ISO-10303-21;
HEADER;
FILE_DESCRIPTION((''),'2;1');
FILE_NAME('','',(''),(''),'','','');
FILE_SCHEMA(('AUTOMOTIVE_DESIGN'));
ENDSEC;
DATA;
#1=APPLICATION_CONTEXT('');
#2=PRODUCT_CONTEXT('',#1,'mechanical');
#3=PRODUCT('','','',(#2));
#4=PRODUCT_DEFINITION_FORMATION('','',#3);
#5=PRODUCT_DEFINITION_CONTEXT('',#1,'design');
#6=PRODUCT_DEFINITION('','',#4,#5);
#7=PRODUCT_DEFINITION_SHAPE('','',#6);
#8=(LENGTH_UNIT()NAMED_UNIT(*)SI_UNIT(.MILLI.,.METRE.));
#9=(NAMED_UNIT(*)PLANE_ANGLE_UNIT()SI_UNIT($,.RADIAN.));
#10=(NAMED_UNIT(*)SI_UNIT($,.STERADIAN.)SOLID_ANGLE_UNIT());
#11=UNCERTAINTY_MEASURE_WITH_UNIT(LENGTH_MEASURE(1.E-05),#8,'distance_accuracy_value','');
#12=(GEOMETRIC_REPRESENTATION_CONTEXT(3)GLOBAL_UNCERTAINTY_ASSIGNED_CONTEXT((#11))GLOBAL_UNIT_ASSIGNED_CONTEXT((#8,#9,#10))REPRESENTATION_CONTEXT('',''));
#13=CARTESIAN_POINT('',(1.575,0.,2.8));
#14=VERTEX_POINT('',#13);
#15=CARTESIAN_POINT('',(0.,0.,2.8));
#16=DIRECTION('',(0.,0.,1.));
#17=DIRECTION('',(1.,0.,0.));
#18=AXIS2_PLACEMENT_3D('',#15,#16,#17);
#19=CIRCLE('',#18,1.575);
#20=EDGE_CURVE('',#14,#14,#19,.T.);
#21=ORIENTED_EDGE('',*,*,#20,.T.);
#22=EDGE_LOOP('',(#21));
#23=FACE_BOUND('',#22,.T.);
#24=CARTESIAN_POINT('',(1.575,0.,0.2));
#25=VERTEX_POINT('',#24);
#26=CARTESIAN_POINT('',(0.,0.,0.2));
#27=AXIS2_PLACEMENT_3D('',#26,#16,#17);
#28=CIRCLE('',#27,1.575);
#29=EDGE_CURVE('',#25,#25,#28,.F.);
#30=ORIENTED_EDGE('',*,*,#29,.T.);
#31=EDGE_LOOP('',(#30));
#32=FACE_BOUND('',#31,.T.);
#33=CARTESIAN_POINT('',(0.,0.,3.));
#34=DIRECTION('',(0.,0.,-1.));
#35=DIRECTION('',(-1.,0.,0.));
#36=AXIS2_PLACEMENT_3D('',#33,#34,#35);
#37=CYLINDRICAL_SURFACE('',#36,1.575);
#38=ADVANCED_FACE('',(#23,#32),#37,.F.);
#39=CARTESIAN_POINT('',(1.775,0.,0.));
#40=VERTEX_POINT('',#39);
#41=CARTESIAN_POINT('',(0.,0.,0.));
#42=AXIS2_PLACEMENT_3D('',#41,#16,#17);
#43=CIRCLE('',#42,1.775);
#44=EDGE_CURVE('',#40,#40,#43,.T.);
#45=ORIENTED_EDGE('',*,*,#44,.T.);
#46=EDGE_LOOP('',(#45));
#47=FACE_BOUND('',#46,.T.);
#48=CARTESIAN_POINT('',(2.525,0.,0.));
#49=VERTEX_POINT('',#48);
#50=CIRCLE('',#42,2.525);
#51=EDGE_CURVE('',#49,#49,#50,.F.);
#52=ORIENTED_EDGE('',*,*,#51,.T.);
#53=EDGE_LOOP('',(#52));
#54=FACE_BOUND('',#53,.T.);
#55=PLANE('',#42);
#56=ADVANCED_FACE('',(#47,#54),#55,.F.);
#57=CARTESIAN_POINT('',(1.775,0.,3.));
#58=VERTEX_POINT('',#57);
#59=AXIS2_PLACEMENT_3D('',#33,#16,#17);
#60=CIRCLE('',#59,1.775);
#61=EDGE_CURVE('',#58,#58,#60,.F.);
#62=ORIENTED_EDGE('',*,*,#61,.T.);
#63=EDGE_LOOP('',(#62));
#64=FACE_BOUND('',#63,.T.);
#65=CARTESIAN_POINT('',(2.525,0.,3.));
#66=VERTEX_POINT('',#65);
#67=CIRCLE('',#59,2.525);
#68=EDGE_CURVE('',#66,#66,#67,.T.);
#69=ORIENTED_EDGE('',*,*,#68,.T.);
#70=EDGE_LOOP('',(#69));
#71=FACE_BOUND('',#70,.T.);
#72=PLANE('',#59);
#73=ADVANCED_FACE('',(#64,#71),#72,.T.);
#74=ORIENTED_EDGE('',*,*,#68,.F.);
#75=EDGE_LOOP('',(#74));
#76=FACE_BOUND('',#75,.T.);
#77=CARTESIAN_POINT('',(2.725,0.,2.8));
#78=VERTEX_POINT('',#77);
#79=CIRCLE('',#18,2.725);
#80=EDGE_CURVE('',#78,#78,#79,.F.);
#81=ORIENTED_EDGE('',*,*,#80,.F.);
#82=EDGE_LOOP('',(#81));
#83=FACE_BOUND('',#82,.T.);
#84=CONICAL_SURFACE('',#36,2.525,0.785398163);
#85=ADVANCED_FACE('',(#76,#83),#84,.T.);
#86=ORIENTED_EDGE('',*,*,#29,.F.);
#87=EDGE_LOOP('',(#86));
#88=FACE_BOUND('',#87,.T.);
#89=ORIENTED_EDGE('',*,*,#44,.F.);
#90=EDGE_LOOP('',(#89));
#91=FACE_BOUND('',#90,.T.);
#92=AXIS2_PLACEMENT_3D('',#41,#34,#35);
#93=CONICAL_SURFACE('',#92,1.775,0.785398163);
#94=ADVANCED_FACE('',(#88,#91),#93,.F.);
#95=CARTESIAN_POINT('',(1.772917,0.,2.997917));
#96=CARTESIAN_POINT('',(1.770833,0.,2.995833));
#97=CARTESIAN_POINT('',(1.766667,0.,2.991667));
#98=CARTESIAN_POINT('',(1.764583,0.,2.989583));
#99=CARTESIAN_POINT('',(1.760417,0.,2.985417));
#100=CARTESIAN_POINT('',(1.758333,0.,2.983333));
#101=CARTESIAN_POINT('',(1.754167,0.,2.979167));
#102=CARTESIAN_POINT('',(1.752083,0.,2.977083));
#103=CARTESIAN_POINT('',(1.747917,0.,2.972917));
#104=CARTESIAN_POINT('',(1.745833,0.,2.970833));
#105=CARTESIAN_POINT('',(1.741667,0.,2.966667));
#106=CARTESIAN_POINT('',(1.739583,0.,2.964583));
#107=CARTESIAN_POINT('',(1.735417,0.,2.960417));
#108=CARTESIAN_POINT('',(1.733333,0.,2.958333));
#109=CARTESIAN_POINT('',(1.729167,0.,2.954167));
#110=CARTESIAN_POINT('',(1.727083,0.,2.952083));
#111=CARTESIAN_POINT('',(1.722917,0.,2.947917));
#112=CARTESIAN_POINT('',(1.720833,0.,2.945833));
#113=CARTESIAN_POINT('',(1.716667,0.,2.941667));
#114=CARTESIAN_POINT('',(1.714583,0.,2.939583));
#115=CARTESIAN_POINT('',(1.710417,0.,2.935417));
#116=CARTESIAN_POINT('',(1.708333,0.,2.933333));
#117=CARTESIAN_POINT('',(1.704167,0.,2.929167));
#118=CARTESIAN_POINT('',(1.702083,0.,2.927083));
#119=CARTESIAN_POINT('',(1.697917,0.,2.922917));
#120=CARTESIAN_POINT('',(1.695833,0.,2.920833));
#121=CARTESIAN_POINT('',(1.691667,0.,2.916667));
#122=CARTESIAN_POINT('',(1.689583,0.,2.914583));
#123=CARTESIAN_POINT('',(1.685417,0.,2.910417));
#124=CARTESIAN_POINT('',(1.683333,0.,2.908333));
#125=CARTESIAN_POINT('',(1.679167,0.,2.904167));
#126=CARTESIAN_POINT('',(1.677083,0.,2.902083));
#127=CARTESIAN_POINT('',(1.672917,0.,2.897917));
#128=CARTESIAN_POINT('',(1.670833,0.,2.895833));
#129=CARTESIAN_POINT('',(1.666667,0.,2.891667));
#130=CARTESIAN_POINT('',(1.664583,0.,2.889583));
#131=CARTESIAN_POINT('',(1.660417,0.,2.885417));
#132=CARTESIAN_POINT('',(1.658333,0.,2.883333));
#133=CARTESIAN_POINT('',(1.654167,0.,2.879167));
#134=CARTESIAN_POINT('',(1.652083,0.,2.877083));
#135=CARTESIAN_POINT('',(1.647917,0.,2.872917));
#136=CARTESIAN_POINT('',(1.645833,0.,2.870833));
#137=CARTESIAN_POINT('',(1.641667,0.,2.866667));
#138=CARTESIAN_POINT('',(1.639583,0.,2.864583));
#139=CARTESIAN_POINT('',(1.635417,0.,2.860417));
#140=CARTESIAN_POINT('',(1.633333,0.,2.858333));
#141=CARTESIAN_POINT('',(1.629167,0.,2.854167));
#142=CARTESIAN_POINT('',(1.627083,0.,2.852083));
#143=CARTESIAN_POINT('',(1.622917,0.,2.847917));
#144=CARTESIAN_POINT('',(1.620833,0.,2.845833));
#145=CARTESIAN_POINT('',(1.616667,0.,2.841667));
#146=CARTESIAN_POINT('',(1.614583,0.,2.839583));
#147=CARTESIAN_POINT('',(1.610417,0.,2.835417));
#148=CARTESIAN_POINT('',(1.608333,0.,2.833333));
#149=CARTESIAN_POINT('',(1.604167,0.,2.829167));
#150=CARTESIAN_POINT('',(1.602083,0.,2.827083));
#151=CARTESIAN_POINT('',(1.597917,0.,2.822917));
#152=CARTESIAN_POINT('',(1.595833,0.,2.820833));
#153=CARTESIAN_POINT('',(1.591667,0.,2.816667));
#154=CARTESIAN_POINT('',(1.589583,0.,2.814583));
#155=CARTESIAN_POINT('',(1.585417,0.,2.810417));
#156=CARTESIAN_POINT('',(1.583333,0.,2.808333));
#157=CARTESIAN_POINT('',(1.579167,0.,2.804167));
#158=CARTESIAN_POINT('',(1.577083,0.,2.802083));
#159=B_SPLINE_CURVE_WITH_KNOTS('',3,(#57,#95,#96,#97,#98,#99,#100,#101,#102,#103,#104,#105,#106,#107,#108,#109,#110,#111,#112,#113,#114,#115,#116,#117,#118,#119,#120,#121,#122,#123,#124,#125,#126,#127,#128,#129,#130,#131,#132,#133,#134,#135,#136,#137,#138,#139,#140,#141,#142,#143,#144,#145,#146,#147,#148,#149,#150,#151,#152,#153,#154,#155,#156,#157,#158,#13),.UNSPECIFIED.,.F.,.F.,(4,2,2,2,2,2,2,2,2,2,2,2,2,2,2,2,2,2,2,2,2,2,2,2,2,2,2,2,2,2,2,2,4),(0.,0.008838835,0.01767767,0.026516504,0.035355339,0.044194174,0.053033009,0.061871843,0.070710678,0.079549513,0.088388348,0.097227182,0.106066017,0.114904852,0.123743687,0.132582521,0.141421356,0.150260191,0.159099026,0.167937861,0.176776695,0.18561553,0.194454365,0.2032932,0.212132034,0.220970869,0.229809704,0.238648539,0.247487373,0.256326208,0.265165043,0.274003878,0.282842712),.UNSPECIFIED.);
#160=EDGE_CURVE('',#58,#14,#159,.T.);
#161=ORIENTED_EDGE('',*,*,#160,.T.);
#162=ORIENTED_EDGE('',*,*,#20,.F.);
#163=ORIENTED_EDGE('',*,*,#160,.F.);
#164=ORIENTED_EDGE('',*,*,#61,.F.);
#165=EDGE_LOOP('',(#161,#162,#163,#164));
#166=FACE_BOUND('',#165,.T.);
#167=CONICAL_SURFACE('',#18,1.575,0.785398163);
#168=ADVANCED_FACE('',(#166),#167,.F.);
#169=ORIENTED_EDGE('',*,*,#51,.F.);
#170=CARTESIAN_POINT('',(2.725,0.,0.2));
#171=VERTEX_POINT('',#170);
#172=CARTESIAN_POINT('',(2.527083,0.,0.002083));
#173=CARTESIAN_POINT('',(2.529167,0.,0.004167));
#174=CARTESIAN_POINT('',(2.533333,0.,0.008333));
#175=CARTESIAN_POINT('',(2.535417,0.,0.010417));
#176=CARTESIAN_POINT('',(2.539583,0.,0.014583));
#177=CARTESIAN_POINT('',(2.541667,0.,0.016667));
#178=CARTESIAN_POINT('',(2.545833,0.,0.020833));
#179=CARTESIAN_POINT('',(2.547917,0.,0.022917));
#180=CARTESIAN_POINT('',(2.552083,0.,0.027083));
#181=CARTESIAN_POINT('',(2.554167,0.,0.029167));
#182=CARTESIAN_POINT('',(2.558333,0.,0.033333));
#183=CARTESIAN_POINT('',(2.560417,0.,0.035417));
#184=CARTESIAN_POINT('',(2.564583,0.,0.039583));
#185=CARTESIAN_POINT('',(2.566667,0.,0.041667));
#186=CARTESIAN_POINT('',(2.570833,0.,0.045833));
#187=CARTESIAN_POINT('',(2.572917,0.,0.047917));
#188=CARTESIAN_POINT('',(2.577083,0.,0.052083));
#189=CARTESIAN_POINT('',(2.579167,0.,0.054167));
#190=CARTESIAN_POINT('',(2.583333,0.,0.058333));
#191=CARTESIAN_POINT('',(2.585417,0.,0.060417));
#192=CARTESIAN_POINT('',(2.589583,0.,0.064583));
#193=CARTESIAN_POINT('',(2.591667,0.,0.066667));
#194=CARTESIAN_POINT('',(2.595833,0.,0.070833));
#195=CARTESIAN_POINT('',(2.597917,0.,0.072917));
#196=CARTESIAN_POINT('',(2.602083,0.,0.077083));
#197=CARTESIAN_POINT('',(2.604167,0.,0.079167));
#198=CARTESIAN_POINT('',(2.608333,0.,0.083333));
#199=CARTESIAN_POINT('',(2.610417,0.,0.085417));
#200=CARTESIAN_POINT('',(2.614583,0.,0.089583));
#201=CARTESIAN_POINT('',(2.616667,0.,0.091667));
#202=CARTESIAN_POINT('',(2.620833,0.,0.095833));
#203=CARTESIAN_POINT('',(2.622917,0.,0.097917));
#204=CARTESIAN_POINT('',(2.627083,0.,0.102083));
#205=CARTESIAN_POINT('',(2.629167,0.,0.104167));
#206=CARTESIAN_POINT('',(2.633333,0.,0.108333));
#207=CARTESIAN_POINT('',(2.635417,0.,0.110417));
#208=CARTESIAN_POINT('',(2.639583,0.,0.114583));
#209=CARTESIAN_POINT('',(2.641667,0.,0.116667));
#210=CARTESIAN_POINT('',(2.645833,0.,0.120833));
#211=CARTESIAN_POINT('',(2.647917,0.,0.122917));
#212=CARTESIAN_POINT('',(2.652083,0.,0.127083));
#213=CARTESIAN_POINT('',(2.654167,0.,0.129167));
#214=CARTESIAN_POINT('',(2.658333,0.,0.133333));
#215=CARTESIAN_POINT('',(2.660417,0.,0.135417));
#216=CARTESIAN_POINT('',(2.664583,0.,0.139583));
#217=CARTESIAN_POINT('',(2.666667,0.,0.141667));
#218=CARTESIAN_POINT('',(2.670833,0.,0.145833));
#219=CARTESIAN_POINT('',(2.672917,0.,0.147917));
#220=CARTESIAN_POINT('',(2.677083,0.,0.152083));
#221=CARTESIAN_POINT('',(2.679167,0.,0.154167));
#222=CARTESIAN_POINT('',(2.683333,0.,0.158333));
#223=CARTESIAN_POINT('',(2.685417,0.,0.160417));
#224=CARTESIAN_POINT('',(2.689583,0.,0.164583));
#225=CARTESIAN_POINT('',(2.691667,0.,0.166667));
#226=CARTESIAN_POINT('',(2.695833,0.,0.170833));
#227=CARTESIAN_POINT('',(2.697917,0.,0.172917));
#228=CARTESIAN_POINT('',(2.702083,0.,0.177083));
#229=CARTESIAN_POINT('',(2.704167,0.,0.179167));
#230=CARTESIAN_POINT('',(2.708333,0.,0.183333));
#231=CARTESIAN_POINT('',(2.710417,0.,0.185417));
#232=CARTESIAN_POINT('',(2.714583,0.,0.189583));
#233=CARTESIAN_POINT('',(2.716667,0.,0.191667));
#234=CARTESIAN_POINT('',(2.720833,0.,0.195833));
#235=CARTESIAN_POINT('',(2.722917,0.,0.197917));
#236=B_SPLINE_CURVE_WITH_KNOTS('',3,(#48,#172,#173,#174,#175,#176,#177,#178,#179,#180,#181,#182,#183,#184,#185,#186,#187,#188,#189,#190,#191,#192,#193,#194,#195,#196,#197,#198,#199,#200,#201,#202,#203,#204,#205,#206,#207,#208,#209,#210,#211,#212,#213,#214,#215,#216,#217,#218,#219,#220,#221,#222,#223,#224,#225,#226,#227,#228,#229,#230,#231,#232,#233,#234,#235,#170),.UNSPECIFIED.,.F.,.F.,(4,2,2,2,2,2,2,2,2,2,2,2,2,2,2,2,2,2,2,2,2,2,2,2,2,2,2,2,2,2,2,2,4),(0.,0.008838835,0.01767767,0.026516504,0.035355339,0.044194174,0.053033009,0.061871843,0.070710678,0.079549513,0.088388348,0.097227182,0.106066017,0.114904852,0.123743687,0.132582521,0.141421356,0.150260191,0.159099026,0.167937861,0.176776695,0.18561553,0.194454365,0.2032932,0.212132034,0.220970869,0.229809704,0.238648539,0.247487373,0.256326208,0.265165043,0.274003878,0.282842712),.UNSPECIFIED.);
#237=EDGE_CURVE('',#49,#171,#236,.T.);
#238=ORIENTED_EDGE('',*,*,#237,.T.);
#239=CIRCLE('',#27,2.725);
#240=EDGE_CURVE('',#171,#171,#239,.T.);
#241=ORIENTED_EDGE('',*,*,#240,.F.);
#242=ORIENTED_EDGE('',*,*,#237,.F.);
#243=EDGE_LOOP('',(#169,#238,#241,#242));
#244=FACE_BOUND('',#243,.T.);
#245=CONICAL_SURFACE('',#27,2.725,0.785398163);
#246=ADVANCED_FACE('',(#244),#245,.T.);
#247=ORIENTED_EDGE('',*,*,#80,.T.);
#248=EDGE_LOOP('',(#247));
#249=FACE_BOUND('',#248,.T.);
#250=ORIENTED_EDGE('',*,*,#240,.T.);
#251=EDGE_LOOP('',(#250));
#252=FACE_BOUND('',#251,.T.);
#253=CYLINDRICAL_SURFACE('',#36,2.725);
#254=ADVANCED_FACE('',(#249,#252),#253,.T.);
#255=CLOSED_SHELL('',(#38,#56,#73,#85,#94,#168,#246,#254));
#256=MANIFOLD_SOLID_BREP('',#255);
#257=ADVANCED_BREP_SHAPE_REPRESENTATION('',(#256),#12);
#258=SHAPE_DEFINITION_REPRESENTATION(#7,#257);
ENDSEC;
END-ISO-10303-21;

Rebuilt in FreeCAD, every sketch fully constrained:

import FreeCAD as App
import Part
import Sketcher

V = App.Vector
Q = App.Units.Quantity


def edges_at(feature, points):
    """Names of the edges that pass closest to the given points."""
    edges = feature.Shape.Edges
    near = lambda p: min(range(len(edges)), key=lambda i: edges[i].distToShape(Part.Vertex(*p))[0])
    return sorted({f"Edge{near(p) + 1}" for p in points})

doc = App.newDocument("Part")
params = doc.addObject("Spreadsheet::Sheet", "Params")
for row, (alias, value) in enumerate([
    ("sketch1_diameter", "5.45 mm"),
    ("sketch1_diameter2", "3.15 mm"),
    ("pad1_length", "3 mm"),
    ("chamfer_size", "0.2 mm"),
], start=1):
    params.set(f"A{row}", alias)
    params.set(f"B{row}", "=" + value)
    params.setAlias(f"B{row}", alias)

body = doc.addObject("PartDesign::Body", "Body")

# Sketch on XY plane
sketch1 = doc.addObject("Sketcher::SketchObject", "Sketch")
body.addObject(sketch1)
sketch1.AttachmentSupport = (doc.XY_Plane, [""])
sketch1.MapMode = "FlatFace"
sketch1.addGeometry(Part.Circle(V(0, 0, 0), V(0, 0, 1), 2.7), False)
sketch1.addGeometry(Part.Circle(V(0, 0, 0), V(0, 0, 1), 1.6), False)
sketch1.addConstraint(Sketcher.Constraint("Coincident", 0, 3, -1, 1))
sketch1.addConstraint(Sketcher.Constraint("Coincident", 1, 3, -1, 1))
sketch1.addConstraint(Sketcher.Constraint("Diameter", 0, Q("5.45 mm")))
sketch1.addConstraint(Sketcher.Constraint("Diameter", 1, Q("3.15 mm")))
sketch1.setExpression("Constraints[2]", "Params.sketch1_diameter")
sketch1.setExpression("Constraints[3]", "Params.sketch1_diameter2")
pad1 = doc.addObject("PartDesign::Pad", "Pad")
body.addObject(pad1)
pad1.Profile = sketch1
pad1.setExpression("Length", "Params.pad1_length")
doc.recompute()

chamfer = doc.addObject("PartDesign::Chamfer", "Chamfer")
body.addObject(chamfer)
chamfer.Base = (pad1, edges_at(pad1, [
    (-2.725, 0, 0),
    (-2.725, 0, 3),
    (-1.575, 0, 0),
    (-1.575, 0, 3),
]))
chamfer.setExpression("Size", "Params.chamfer_size")

doc.recompute()
